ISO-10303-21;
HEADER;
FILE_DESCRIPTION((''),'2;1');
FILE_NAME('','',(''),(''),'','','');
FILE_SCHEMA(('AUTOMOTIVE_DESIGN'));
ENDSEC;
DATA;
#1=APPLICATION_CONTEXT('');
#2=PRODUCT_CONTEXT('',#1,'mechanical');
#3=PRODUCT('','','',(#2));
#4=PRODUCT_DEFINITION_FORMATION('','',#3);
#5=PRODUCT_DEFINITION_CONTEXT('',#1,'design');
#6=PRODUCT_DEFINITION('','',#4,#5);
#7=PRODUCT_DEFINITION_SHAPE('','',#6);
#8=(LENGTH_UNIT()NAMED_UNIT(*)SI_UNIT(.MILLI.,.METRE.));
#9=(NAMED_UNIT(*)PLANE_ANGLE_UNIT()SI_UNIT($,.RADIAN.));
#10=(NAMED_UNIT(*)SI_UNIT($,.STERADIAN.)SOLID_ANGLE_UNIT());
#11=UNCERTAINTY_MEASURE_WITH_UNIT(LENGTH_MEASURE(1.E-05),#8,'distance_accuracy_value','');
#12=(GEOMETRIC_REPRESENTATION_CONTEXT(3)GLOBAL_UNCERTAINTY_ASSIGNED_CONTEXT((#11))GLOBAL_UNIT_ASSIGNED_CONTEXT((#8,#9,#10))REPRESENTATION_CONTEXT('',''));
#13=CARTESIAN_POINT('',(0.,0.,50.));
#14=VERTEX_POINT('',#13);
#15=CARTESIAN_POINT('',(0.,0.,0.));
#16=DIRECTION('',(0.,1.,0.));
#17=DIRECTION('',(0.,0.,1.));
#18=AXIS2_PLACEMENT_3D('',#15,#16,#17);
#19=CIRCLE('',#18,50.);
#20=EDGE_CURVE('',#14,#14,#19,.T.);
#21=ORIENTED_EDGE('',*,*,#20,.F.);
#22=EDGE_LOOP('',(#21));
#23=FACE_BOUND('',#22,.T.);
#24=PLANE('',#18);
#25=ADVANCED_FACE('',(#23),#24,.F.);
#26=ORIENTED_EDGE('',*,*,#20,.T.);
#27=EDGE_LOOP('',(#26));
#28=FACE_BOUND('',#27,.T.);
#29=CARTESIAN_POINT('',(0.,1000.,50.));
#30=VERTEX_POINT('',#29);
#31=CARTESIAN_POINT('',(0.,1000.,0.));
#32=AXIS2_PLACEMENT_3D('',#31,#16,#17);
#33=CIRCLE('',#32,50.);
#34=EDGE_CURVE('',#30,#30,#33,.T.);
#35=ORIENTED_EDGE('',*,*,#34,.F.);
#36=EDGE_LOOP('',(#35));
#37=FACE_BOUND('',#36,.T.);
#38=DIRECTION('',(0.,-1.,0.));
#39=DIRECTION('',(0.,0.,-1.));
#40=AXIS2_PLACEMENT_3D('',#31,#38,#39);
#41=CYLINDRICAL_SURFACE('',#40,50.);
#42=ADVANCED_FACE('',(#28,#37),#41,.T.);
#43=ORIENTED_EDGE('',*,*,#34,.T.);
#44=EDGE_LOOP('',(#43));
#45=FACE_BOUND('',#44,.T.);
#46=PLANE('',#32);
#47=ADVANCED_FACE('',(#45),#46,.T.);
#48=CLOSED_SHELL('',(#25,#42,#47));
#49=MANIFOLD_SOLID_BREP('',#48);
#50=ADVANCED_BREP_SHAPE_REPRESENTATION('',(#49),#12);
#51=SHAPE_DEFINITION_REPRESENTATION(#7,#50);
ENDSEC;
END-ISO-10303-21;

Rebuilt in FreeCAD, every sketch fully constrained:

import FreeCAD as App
import Part
import Sketcher

V = App.Vector
Q = App.Units.Quantity

doc = App.newDocument("Part")
body = doc.addObject("PartDesign::Body", "Body")

sketch1 = doc.addObject("Sketcher::SketchObject", "Sketch")
body.addObject(sketch1)
sketch1.AttachmentSupport = (doc.XZ_Plane, [""])
sketch1.MapMode = "FlatFace"
sketch1.addGeometry(Part.Circle(V(0, 0, 0), V(0, 0, 1), 50), False)
sketch1.addConstraint([
    Sketcher.Constraint("Coincident", 0, 3, -1, 1),
    Sketcher.Constraint("Diameter", 0, Q("100 mm")),
])
pad1 = doc.addObject("PartDesign::Pad", "Pad")
body.addObject(pad1)
pad1.Profile = sketch1
pad1.Length = 1000
pad1.Reversed = True

doc.recompute()
